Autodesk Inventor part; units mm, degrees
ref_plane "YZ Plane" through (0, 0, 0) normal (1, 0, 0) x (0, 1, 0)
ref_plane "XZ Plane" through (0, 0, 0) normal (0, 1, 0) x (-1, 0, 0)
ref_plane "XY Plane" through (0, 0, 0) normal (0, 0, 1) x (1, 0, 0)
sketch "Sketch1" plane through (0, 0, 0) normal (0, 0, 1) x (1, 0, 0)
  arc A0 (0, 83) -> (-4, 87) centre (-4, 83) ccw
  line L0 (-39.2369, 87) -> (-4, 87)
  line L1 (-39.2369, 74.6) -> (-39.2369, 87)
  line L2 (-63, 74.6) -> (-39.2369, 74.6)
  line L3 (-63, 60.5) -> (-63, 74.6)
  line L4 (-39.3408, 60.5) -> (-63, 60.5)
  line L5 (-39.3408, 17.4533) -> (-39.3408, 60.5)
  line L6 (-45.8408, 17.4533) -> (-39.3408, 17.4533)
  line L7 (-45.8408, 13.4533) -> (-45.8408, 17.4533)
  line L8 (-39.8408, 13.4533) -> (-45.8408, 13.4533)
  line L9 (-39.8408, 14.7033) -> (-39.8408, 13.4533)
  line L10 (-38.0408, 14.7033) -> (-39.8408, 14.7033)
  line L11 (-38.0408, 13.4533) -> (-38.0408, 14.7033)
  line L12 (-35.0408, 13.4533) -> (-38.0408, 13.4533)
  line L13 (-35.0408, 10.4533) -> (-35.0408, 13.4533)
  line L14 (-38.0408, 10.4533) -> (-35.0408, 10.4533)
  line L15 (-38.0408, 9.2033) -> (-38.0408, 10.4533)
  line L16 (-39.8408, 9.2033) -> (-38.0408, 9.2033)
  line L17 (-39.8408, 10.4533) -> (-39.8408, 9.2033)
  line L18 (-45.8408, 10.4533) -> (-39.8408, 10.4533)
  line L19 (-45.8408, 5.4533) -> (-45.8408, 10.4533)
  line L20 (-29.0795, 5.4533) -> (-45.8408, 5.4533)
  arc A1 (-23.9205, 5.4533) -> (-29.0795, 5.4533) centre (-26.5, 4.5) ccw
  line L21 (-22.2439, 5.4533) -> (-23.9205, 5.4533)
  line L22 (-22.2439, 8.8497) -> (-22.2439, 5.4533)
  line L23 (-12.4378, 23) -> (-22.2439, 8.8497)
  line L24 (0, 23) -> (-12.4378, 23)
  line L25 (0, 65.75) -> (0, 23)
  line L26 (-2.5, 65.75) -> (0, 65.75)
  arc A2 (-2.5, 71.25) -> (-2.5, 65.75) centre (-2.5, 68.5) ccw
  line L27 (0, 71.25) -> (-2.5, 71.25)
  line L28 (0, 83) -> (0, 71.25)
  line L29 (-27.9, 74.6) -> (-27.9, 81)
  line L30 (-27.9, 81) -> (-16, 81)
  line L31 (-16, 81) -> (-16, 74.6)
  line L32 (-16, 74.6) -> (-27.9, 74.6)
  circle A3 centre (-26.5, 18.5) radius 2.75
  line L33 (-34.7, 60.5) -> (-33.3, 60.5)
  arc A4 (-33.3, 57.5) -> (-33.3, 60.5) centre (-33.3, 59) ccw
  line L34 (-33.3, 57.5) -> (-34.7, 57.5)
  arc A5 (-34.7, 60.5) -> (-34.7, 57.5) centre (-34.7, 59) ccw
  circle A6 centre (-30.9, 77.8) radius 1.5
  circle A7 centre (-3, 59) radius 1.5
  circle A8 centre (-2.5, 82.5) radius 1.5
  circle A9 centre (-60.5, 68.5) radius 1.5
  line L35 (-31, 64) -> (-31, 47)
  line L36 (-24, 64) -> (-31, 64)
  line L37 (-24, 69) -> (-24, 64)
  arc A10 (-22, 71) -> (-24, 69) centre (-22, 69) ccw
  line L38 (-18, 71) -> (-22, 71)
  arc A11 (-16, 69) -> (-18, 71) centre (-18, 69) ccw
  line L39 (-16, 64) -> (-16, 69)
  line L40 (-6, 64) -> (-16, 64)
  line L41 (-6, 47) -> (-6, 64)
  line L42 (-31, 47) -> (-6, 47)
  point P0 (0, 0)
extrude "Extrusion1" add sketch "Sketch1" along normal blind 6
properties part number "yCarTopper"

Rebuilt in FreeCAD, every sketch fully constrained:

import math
import FreeCAD as App
import Part
import Sketcher


def add_polygon(sketch, points):
    """Adds a closed chain of lines whose ends are joined by coincident constraints."""
    first, n = sketch.GeometryCount, len(points)
    for a, b in zip(points, points[1:] + points[:1]):
        sketch.addGeometry(Part.LineSegment(App.Vector(*a, 0), App.Vector(*b, 0)), False)
    for i in range(n):
        sketch.addConstraint(Sketcher.Constraint("Coincident", first + i, 2, first + (i + 1) % n, 1))

doc = App.newDocument("Part")
params = doc.addObject("Spreadsheet::Sheet", "Params")
for row, (alias, value) in enumerate([
    ("sketch1_diameter", "3 mm"),
    ("sketch1_radius", "4 mm"),
    ("sketch1_radius2", "2 mm"),
    ("sketch1_diameter2", "5.5 mm"),
    ("sketch1_width", "6 mm"),
    ("pad1_length", "6 mm"),
], start=1):
    params.set(f"A{row}", alias)
    params.set(f"B{row}", "=" + value)
    params.setAlias(f"B{row}", alias)

body = doc.addObject("PartDesign::Body", "Body")

sketch1 = body.newObject("Sketcher::SketchObject", "Sketch")
sketch1.AttachmentSupport = (doc.getObject("XY_Plane"), [""])
sketch1.MapMode = "FlatFace"
sketch1.addGeometry(Part.LineSegment(App.Vector(0, 71.25, 0), App.Vector(0, 83, 0)), False)
sketch1.addGeometry(Part.ArcOfCircle(Part.Circle(App.Vector(-4, 83, 0), App.Vector(0, 0, 1), 4), math.radians(0), math.radians(90)), False)
sketch1.addGeometry(Part.LineSegment(App.Vector(-4, 87, 0), App.Vector(-39.2369, 87, 0)), False)
sketch1.addGeometry(Part.LineSegment(App.Vector(-39.2369, 87, 0), App.Vector(-39.2369, 74.6, 0)), False)
sketch1.addGeometry(Part.LineSegment(App.Vector(-39.2369, 74.6, 0), App.Vector(-63, 74.6, 0)), False)
sketch1.addGeometry(Part.LineSegment(App.Vector(-63, 74.6, 0), App.Vector(-63, 60.5, 0)), False)
sketch1.addGeometry(Part.LineSegment(App.Vector(-63, 60.5, 0), App.Vector(-39.3408, 60.5, 0)), False)
sketch1.addGeometry(Part.LineSegment(App.Vector(-39.3408, 60.5, 0), App.Vector(-39.3408, 17.4533, 0)), False)
sketch1.addGeometry(Part.LineSegment(App.Vector(-39.3408, 17.4533, 0), App.Vector(-45.8408, 17.4533, 0)), False)
sketch1.addGeometry(Part.LineSegment(App.Vector(-45.8408, 17.4533, 0), App.Vector(-45.8408, 13.4533, 0)), False)
sketch1.addGeometry(Part.LineSegment(App.Vector(-45.8408, 13.4533, 0), App.Vector(-39.8408, 13.4533, 0)), False)
sketch1.addGeometry(Part.LineSegment(App.Vector(-39.8408, 13.4533, 0), App.Vector(-39.8408, 14.7033, 0)), False)
sketch1.addGeometry(Part.LineSegment(App.Vector(-39.8408, 14.7033, 0), App.Vector(-38.0408, 14.7033, 0)), False)
sketch1.addGeometry(Part.LineSegment(App.Vector(-38.0408, 14.7033, 0), App.Vector(-38.0408, 13.4533, 0)), False)
sketch1.addGeometry(Part.LineSegment(App.Vector(-38.0408, 13.4533, 0), App.Vector(-35.0408, 13.4533, 0)), False)
sketch1.addGeometry(Part.LineSegment(App.Vector(-35.0408, 13.4533, 0), App.Vector(-35.0408, 10.4533, 0)), False)
sketch1.addGeometry(Part.LineSegment(App.Vector(-35.0408, 10.4533, 0), App.Vector(-38.0408, 10.4533, 0)), False)
sketch1.addGeometry(Part.LineSegment(App.Vector(-38.0408, 10.4533, 0), App.Vector(-38.0408, 9.2033, 0)), False)
sketch1.addGeometry(Part.LineSegment(App.Vector(-38.0408, 9.2033, 0), App.Vector(-39.8408, 9.2033, 0)), False)
sketch1.addGeometry(Part.LineSegment(App.Vector(-39.8408, 9.2033, 0), App.Vector(-39.8408, 10.4533, 0)), False)
sketch1.addGeometry(Part.LineSegment(App.Vector(-39.8408, 10.4533, 0), App.Vector(-45.8408, 10.4533, 0)), False)
sketch1.addGeometry(Part.LineSegment(App.Vector(-45.8408, 10.4533, 0), App.Vector(-45.8408, 5.4533, 0)), False)
sketch1.addGeometry(Part.LineSegment(App.Vector(-45.8408, 5.4533, 0), App.Vector(-29.0795, 5.4533, 0)), False)
sketch1.addGeometry(Part.ArcOfCircle(Part.Circle(App.Vector(-26.5, 4.5, 0), App.Vector(0, 0, 1), 2.750018), math.radians(20.282687), math.radians(159.717313)), False)
sketch1.addGeometry(Part.LineSegment(App.Vector(-23.9205, 5.4533, 0), App.Vector(-22.2439, 5.4533, 0)), False)
sketch1.addGeometry(Part.LineSegment(App.Vector(-22.2439, 5.4533, 0), App.Vector(-22.2439, 8.8497, 0)), False)
sketch1.addGeometry(Part.LineSegment(App.Vector(-22.2439, 8.8497, 0), App.Vector(-12.4378, 23, 0)), False)
sketch1.addGeometry(Part.LineSegment(App.Vector(-12.4378, 23, 0), App.Vector(0, 23, 0)), False)
sketch1.addGeometry(Part.LineSegment(App.Vector(0, 23, 0), App.Vector(0, 65.75, 0)), False)
sketch1.addGeometry(Part.LineSegment(App.Vector(0, 65.75, 0), App.Vector(-2.5, 65.75, 0)), False)
sketch1.addGeometry(Part.ArcOfCircle(Part.Circle(App.Vector(-2.5, 68.5, 0), App.Vector(0, 0, 1), 2.75), math.radians(90), math.radians(270)), False)
sketch1.addGeometry(Part.LineSegment(App.Vector(-2.5, 71.25, 0), App.Vector(0, 71.25, 0)), False)
sketch1.addGeometry(Part.Circle(App.Vector(-26.5, 18.5, 0), App.Vector(0, 0, 1), 2.75), False)
sketch1.addGeometry(Part.ArcOfCircle(Part.Circle(App.Vector(-34.7, 59, 0), App.Vector(0, 0, 1), 1.5), math.radians(90), math.radians(270)), False)
sketch1.addGeometry(Part.LineSegment(App.Vector(-34.7, 60.5, 0), App.Vector(-33.3, 60.5, 0)), False)
sketch1.addGeometry(Part.ArcOfCircle(Part.Circle(App.Vector(-33.3, 59, 0), App.Vector(0, 0, 1), 1.5), math.radians(-90), math.radians(90)), False)
sketch1.addGeometry(Part.LineSegment(App.Vector(-33.3, 57.5, 0), App.Vector(-34.7, 57.5, 0)), False)
sketch1.addGeometry(Part.Circle(App.Vector(-60.5, 68.5, 0), App.Vector(0, 0, 1), 1.5), False)
sketch1.addGeometry(Part.LineSegment(App.Vector(-31, 47, 0), App.Vector(-31, 64, 0)), False)
sketch1.addGeometry(Part.LineSegment(App.Vector(-31, 64, 0), App.Vector(-24, 64, 0)), False)
sketch1.addGeometry(Part.LineSegment(App.Vector(-24, 64, 0), App.Vector(-24, 69, 0)), False)
sketch1.addGeometry(Part.ArcOfCircle(Part.Circle(App.Vector(-22, 69, 0), App.Vector(0, 0, 1), 2), math.radians(90), math.radians(180)), False)
sketch1.addGeometry(Part.LineSegment(App.Vector(-22, 71, 0), App.Vector(-18, 71, 0)), False)
sketch1.addGeometry(Part.ArcOfCircle(Part.Circle(App.Vector(-18, 69, 0), App.Vector(0, 0, 1), 2), math.radians(0), math.radians(90)), False)
sketch1.addGeometry(Part.LineSegment(App.Vector(-16, 69, 0), App.Vector(-16, 64, 0)), False)
sketch1.addGeometry(Part.LineSegment(App.Vector(-16, 64, 0), App.Vector(-6, 64, 0)), False)
sketch1.addGeometry(Part.LineSegment(App.Vector(-6, 64, 0), App.Vector(-6, 47, 0)), False)
sketch1.addGeometry(Part.LineSegment(App.Vector(-6, 47, 0), App.Vector(-31, 47, 0)), False)
sketch1.addGeometry(Part.Circle(App.Vector(-3, 59, 0), App.Vector(0, 0, 1), 1.5), False)
sketch1.addGeometry(Part.Circle(App.Vector(-30.9, 77.8, 0), App.Vector(0, 0, 1), 1.5), False)
add_polygon(sketch1, [(-16, 74.6), (-27.9, 74.6), (-27.9, 81), (-16, 81)])
sketch1.addGeometry(Part.Circle(App.Vector(-2.5, 82.5, 0), App.Vector(0, 0, 1), 1.5), False)
sketch1.addConstraint([
    Sketcher.Constraint("Tangent", 0, 2, 1, 1),
    Sketcher.Constraint("Tangent", 1, 2, 2, 1),
    Sketcher.Constraint("Coincident", 2, 2, 3, 1),
    Sketcher.Constraint("Coincident", 3, 2, 4, 1),
    Sketcher.Constraint("Coincident", 4, 2, 5, 1),
    Sketcher.Constraint("Coincident", 5, 2, 6, 1),
    Sketcher.Constraint("Coincident", 6, 2, 7, 1),
    Sketcher.Constraint("Coincident", 7, 2, 8, 1),
    Sketcher.Constraint("Coincident", 8, 2, 9, 1),
    Sketcher.Constraint("Coincident", 9, 2, 10, 1),
    Sketcher.Constraint("Coincident", 10, 2, 11, 1),
    Sketcher.Constraint("Coincident", 11, 2, 12, 1),
    Sketcher.Constraint("Coincident", 12, 2, 13, 1),
    Sketcher.Constraint("Coincident", 13, 2, 14, 1),
    Sketcher.Constraint("Coincident", 14, 2, 15, 1),
    Sketcher.Constraint("Coincident", 15, 2, 16, 1),
    Sketcher.Constraint("Coincident", 16, 2, 17, 1),
    Sketcher.Constraint("Coincident", 17, 2, 18, 1),
    Sketcher.Constraint("Coincident", 18, 2, 19, 1),
    Sketcher.Constraint("Coincident", 19, 2, 20, 1),
    Sketcher.Constraint("Coincident", 20, 2, 21, 1),
    Sketcher.Constraint("Coincident", 21, 2, 22, 1),
    Sketcher.Constraint("Coincident", 22, 2, 23, 2),
    Sketcher.Constraint("Coincident", 23, 1, 24, 1),
    Sketcher.Constraint("Coincident", 24, 2, 25, 1),
    Sketcher.Constraint("Coincident", 25, 2, 26, 1),
    Sketcher.Constraint("Coincident", 26, 2, 27, 1),
    Sketcher.Constraint("Coincident", 27, 2, 28, 1),
    Sketcher.Constraint("Coincident", 28, 2, 29, 1),
    Sketcher.Constraint("Tangent", 29, 2, 30, 2),
    Sketcher.Constraint("Tangent", 30, 1, 31, 1),
    Sketcher.Constraint("Coincident", 31, 2, 0, 1),
    Sketcher.Constraint("Tangent", 33, 1, 34, 1),
    Sketcher.Constraint("Tangent", 34, 2, 35, 2),
    Sketcher.Constraint("Tangent", 35, 1, 36, 1),
    Sketcher.Constraint("Tangent", 36, 2, 33, 2),
    Sketcher.Constraint("Coincident", 38, 2, 39, 1),
    Sketcher.Constraint("Coincident", 39, 2, 40, 1),
    Sketcher.Constraint("Tangent", 40, 2, 41, 2),
    Sketcher.Constraint("Tangent", 41, 1, 42, 1),
    Sketcher.Constraint("Tangent", 42, 2, 43, 2),
    Sketcher.Constraint("Tangent", 43, 1, 44, 1),
    Sketcher.Constraint("Coincident", 44, 2, 45, 1),
    Sketcher.Constraint("Coincident", 45, 2, 46, 1),
    Sketcher.Constraint("Coincident", 46, 2, 47, 1),
    Sketcher.Constraint("Coincident", 47, 2, 38, 1),
    Sketcher.Constraint("Vertical", 0),
    Sketcher.Constraint("Horizontal", 2),
    Sketcher.Constraint("Vertical", 3),
    Sketcher.Constraint("Horizontal", 4),
    Sketcher.Constraint("Vertical", 5),
    Sketcher.Constraint("Horizontal", 6),
    Sketcher.Constraint("Vertical", 7),
    Sketcher.Constraint("Horizontal", 8),
    Sketcher.Constraint("Vertical", 9),
    Sketcher.Constraint("Horizontal", 10),
    Sketcher.Constraint("Vertical", 11),
    Sketcher.Constraint("Horizontal", 12),
    Sketcher.Constraint("Vertical", 13),
    Sketcher.Constraint("Horizontal", 14),
    Sketcher.Constraint("Vertical", 15),
    Sketcher.Constraint("Horizontal", 16),
    Sketcher.Constraint("Vertical", 17),
    Sketcher.Constraint("Horizontal", 18),
    Sketcher.Constraint("Vertical", 19),
    Sketcher.Constraint("Horizontal", 20),
    Sketcher.Constraint("Vertical", 21),
    Sketcher.Constraint("Horizontal", 22),
    Sketcher.Constraint("Horizontal", 24),
    Sketcher.Constraint("Vertical", 25),
    Sketcher.Constraint("Horizontal", 27),
    Sketcher.Constraint("Vertical", 28),
    Sketcher.Constraint("Horizontal", 29),
    Sketcher.Constraint("Horizontal", 31),
    Sketcher.Constraint("Horizontal", 34),
    Sketcher.Constraint("Horizontal", 36),
    Sketcher.Constraint("Vertical", 38),
    Sketcher.Constraint("Horizontal", 39),
    Sketcher.Constraint("Vertical", 40),
    Sketcher.Constraint("Horizontal", 42),
    Sketcher.Constraint("Vertical", 44),
    Sketcher.Constraint("Horizontal", 45),
    Sketcher.Constraint("Vertical", 46),
    Sketcher.Constraint("Horizontal", 47),
    Sketcher.Constraint("Horizontal", 50),
    Sketcher.Constraint("Vertical", 51),
    Sketcher.Constraint("Horizontal", 52),
    Sketcher.Constraint("Vertical", 53),
    Sketcher.Constraint("Equal", 23, 30),
    Sketcher.Constraint("Equal", 30, 32),
    Sketcher.Constraint("Equal", 35, 37),
    Sketcher.Constraint("Equal", 41, 43),
    Sketcher.Constraint("Equal", 37, 48),
    Sketcher.Constraint("Equal", 48, 49),
    Sketcher.Constraint("Equal", 49, 54),
    Sketcher.Constraint("PointOnObject", 0, 2, -2),
    Sketcher.Constraint("PointOnObject", 27, 2, -2),
    Sketcher.Constraint("Horizontal", 30, 3, 37, 3),
    Sketcher.Constraint("Horizontal", 35, 3, 48, 3),
    Sketcher.Constraint("Horizontal", 10, 2, 13, 2),
    Sketcher.Constraint("Horizontal", 16, 2, 19, 2),
    Sketcher.Constraint("Horizontal", 22, 2, 23, 1),
    Sketcher.Constraint("Horizontal", 6, 2, 33, 1),
    Sketcher.Constraint("Horizontal", 39, 2, 44, 2),
    Sketcher.Constraint("Horizontal", 4, 2, 50, 2),
    Sketcher.Constraint("Vertical", 23, 3, 32, 3),
    Sketcher.Constraint("Vertical", 30, 3, 54, 3),
    Sketcher.Constraint("Vertical", 13, 2, 16, 2),
    Sketcher.Constraint("Vertical", 11, 2, 18, 2),
    Sketcher.Constraint("Vertical", 9, 2, 20, 2),
    Sketcher.Constraint("Vertical", 44, 2, 52, 2),
    Sketcher.Constraint("Equal", 42, 9),
    Sketcher.Constraint("Equal", 16, 15),
    Sketcher.Constraint("Equal", 13, 17),
    Sketcher.Constraint("Equal", 21, 40),
    Sketcher.Constraint("Diameter", 37, 3.0),
    Sketcher.Constraint("Radius", 1, 4.0),
    Sketcher.Constraint("Radius", 41, 2.0),
    Sketcher.Constraint("Diameter", 32, 5.5),
    Sketcher.Constraint("DistanceX", 10, 1, 10, 2, 6.0),
    Sketcher.Constraint("DistanceX", 14, 1, 14, 2, 3.0),
    Sketcher.Constraint("DistanceX", 39, 1, 39, 2, 7.0),
    Sketcher.Constraint("DistanceX", 42, 1, 42, 2, 4.0),
    Sketcher.Constraint("DistanceX", 45, 1, 45, 2, 10.0),
    Sketcher.Constraint("DistanceY", 21, 2, 21, 1, 5.0),
    Sketcher.Constraint("DistanceY", 38, 1, 38, 2, 17.0),
    Sketcher.Constraint("DistanceX", 8, 2, 8, 1, 6.5),
    Sketcher.Constraint("DistanceX", 12, 1, 12, 2, 1.8),
    Sketcher.Constraint("DistanceX", 29, 2, 29, 1, 2.5),
    Sketcher.Constraint("DistanceX", 34, 1, 34, 2, 1.4),
    Sketcher.Constraint("DistanceX", 50, 2, 50, 1, 11.9),
    Sketcher.Constraint("DistanceY", 3, 2, 3, 1, 12.4),
    Sketcher.Constraint("DistanceY", 5, 2, 5, 1, 14.1),
    Sketcher.Constraint("DistanceY", 51, 1, 51, 2, 6.4),
    Sketcher.Constraint("DistanceY", -1, 1, 1, 3, 83.0),
    Sketcher.Constraint("DistanceX", 41, 3, -1, 1, 22.0),
    Sketcher.Constraint("DistanceY", -1, 1, 41, 3, 69.0),
    Sketcher.Constraint("DistanceX", 48, 3, -1, 1, 3.0),
    Sketcher.Constraint("DistanceX", 4, 2, -1, 1, 63.0),
    Sketcher.Constraint("DistanceY", -1, 1, 26, 2, 23.0),
    Sketcher.Constraint("DistanceY", 0, 1, 0, 2, 11.75),
    Sketcher.Constraint("DistanceY", 11, 1, 11, 2, 1.25),
    Sketcher.Constraint("DistanceX", 23, 3, -1, 1, 26.5),
    Sketcher.Constraint("DistanceY", -1, 1, 23, 3, 4.5),
    Sketcher.Constraint("DistanceY", -1, 1, 32, 3, 18.5),
    Sketcher.Constraint("DistanceX", 33, 3, -1, 1, 34.7),
    Sketcher.Constraint("DistanceX", 37, 3, -1, 1, 60.5),
    Sketcher.Constraint("DistanceX", 49, 3, -1, 1, 30.9),
    Sketcher.Constraint("DistanceY", -1, 1, 49, 3, 77.8),
    Sketcher.Constraint("DistanceY", -1, 1, 54, 3, 82.5),
    Sketcher.Constraint("DistanceX", 2, 2, 2, 1, 35.237),
    Sketcher.Constraint("Distance", 26, 17.216),
    Sketcher.Constraint("DistanceX", 6, 1, 6, 2, 23.6592),
    Sketcher.Constraint("DistanceX", 22, 1, 22, 2, 16.7613),
    Sketcher.Constraint("DistanceX", 24, 1, 24, 2, 1.6766),
    Sketcher.Constraint("DistanceX", 27, 1, 27, 2, 12.4378),
])
sketch1.setExpression("Constraints[119]", "Params.sketch1_diameter")
sketch1.setExpression("Constraints[120]", "Params.sketch1_radius")
sketch1.setExpression("Constraints[121]", "Params.sketch1_radius2")
sketch1.setExpression("Constraints[122]", "Params.sketch1_diameter2")
sketch1.setExpression("Constraints[123]", "Params.sketch1_width")
pad1 = body.newObject("PartDesign::Pad", "Pad")
pad1.Profile = sketch1
pad1.setExpression("Length", "Params.pad1_length")

doc.recompute()
